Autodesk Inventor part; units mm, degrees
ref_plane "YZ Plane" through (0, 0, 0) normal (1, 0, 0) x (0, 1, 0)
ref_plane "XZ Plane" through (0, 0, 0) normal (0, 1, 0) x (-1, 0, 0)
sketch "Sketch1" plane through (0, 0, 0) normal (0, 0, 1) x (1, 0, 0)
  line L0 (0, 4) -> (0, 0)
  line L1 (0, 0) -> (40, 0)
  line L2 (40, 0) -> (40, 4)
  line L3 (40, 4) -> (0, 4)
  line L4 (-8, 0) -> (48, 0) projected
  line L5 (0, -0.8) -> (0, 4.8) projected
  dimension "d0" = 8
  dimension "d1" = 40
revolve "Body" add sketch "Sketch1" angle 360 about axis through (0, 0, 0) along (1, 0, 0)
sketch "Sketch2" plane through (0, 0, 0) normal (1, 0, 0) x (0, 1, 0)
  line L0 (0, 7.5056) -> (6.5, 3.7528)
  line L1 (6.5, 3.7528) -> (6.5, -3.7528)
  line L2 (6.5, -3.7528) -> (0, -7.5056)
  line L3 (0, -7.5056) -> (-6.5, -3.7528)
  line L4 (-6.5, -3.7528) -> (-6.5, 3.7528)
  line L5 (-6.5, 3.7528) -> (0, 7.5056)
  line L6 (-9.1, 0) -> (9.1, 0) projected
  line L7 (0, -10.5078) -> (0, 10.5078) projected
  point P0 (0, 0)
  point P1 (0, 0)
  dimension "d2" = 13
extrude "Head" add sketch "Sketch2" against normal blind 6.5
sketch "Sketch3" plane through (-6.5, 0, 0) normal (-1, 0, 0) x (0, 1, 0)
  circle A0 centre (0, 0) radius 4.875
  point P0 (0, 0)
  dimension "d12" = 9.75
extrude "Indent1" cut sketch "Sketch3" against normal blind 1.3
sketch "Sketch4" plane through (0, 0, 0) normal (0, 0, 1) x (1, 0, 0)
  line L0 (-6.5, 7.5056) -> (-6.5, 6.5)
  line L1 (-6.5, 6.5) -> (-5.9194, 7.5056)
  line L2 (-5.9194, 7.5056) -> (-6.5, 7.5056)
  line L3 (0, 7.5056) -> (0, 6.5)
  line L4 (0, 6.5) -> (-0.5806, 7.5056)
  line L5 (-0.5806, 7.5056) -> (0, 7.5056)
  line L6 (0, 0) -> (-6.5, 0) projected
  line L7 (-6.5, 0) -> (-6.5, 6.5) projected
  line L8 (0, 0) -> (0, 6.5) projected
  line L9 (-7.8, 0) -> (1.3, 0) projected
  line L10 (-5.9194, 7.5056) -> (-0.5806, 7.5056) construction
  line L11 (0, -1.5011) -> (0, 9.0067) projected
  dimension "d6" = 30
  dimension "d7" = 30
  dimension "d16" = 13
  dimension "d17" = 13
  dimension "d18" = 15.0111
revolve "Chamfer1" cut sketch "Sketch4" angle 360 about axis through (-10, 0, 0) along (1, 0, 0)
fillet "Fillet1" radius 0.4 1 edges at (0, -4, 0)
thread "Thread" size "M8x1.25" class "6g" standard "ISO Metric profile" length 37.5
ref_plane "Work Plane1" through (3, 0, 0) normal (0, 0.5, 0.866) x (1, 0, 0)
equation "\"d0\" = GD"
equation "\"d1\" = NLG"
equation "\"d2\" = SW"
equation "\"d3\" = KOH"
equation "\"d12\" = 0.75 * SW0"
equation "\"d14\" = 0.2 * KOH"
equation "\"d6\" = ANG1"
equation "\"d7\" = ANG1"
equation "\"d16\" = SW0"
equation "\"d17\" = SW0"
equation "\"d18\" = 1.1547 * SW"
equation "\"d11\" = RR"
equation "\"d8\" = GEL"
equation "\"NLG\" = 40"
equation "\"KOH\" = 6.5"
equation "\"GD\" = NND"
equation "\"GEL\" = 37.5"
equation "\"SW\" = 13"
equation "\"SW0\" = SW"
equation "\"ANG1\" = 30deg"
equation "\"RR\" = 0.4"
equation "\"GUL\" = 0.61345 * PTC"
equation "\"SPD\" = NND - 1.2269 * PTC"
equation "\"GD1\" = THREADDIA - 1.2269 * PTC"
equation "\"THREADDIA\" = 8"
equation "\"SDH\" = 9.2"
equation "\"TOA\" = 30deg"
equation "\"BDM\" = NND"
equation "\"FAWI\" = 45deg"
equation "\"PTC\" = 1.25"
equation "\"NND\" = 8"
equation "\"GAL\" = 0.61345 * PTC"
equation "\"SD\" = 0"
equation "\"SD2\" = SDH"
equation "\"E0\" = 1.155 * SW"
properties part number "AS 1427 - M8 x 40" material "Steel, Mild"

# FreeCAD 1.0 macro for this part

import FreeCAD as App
import Part
import Sketcher
from FreeCAD import Vector
Q = App.Units.Quantity


def edges_at(feature, points):
    """Names of the edges that pass closest to the given points."""
    edges = feature.Shape.Edges
    near = lambda p: min(range(len(edges)), key=lambda i: edges[i].distToShape(Part.Vertex(*p))[0])
    return sorted({f"Edge{near(p) + 1}" for p in points})


def add_polygon(sketch, points):
    """Adds a closed chain of lines whose ends are joined by coincident constraints."""
    first, n = sketch.GeometryCount, len(points)
    for a, b in zip(points, points[1:] + points[:1]):
        sketch.addGeometry(Part.LineSegment(App.Vector(*a, 0), App.Vector(*b, 0)), False)
    for i in range(n):
        sketch.addConstraint(Sketcher.Constraint("Coincident", first + i, 2, first + (i + 1) % n, 1))

doc = App.newDocument("Part")
body = doc.addObject("PartDesign::Body", "Body")

sketch1 = body.newObject("Sketcher::SketchObject", "Sketch")
sketch1.AttachmentSupport = (doc.getObject("XY_Plane"), [""])
sketch1.MapMode = "FlatFace"
add_polygon(sketch1, [(40, 4), (0, 4), (0, 0), (40, 0)])
sketch1.addConstraint([
    Sketcher.Constraint("Horizontal", 0),
    Sketcher.Constraint("Vertical", 1),
    Sketcher.Constraint("Horizontal", 2),
    Sketcher.Constraint("Vertical", 3),
    Sketcher.Constraint("Coincident", 1, 2, -1, 1),
    Sketcher.Constraint("DistanceX", 0, 2, 0, 1, 40.0),
    Sketcher.Constraint("DistanceY", 1, 2, 1, 1, 4.0),
])
revolution = body.newObject("PartDesign::Revolution", "Revolution")
revolution.Profile = sketch1
revolution.ReferenceAxis = (sketch1, ["H_Axis"])
revolution.Angle = 360

sketch2 = body.newObject("Sketcher::SketchObject", "Sketch001")
sketch2.AttachmentSupport = (doc.getObject("YZ_Plane"), [""])
sketch2.MapMode = "FlatFace"
add_polygon(sketch2, [(-6, 4), (-6, -4), (0, -8), (6, -4), (6, 4), (0, 8)])
sketch2.addConstraint([
    Sketcher.Constraint("Vertical", 0),
    Sketcher.Constraint("Vertical", 3),
    Sketcher.Constraint("Symmetric", 0, 2, 3, 2, -1, 1),
    Sketcher.Constraint("Symmetric", 1, 2, 4, 2, -1, 1),
    Sketcher.Constraint("PointOnObject", 1, 2, -2),
    Sketcher.Constraint("Parallel", 2, 5),
    Sketcher.Constraint("Horizontal", 0, 2, 2, 2),
    Sketcher.Constraint("DistanceX", 0, 2, 2, 2, 13.0),
    Sketcher.Constraint("Angle", 1, Q("-30.0002 deg")),
    Sketcher.Constraint("DistanceY", 0, 2, 0, 1, 7.5056),
])
pad1 = body.newObject("PartDesign::Pad", "Pad")
pad1.Profile = sketch2
pad1.Length = 6.5
pad1.Reversed = True

sketch3 = body.newObject("Sketcher::SketchObject", "Sketch002")
sketch3.AttachmentSupport = (doc.getObject("YZ_Plane"), [""])
sketch3.MapMode = "FlatFace"
sketch3.AttachmentOffset = App.Placement(Vector(0, 0, -6.5), App.Rotation())
sketch3.addGeometry(Part.Circle(Vector(0, 0, 0), Vector(0, 0, 1), 4.9), False)
sketch3.addConstraint([
    Sketcher.Constraint("Coincident", 0, 3, -1, 1),
    Sketcher.Constraint("Diameter", 0, 9.75),
])
pocket1 = body.newObject("PartDesign::Pocket", "Pocket")
pocket1.Profile = sketch3
pocket1.Length = 1.3
pocket1.Reversed = True

sketch4 = body.newObject("Sketcher::SketchObject", "Sketch003")
sketch4.AttachmentSupport = (doc.getObject("XY_Plane"), [""])
sketch4.MapMode = "FlatFace"
add_polygon(sketch4, [(-5.9, 7.5), (-6.5, 7.5), (-6.5, 6.5)])
add_polygon(sketch4, [(-0.6, 7.5), (0, 6.5), (0, 7.5)])
sketch4.addConstraint([
    Sketcher.Constraint("Horizontal", 0),
    Sketcher.Constraint("Vertical", 1),
    Sketcher.Constraint("Vertical", 4),
    Sketcher.Constraint("Horizontal", 5),
    Sketcher.Constraint("PointOnObject", 3, 2, -2),
    Sketcher.Constraint("Horizontal", 1, 2, 3, 2),
    Sketcher.Constraint("Horizontal", 2, 2, 4, 2),
    Sketcher.Constraint("Equal", 0, 5),
    Sketcher.Constraint("Angle", 2, Q("59.9993 deg")),
    Sketcher.Constraint("DistanceX", 0, 2, -1, 1, 6.5),
    Sketcher.Constraint("DistanceY", -1, 1, 1, 2, 6.5),
    Sketcher.Constraint("DistanceX", 0, 2, 0, 1, 0.5806),
])
groove = body.newObject("PartDesign::Groove", "Groove")
groove.Profile = sketch4
groove.ReferenceAxis = (sketch4, ["H_Axis"])
groove.Angle = 360
doc.recompute()

fillet = body.newObject("PartDesign::Fillet", "Fillet")
fillet.Base = (groove, edges_at(groove, [(0, -4, 0)]))
fillet.Radius = 0.4

doc.recompute()
